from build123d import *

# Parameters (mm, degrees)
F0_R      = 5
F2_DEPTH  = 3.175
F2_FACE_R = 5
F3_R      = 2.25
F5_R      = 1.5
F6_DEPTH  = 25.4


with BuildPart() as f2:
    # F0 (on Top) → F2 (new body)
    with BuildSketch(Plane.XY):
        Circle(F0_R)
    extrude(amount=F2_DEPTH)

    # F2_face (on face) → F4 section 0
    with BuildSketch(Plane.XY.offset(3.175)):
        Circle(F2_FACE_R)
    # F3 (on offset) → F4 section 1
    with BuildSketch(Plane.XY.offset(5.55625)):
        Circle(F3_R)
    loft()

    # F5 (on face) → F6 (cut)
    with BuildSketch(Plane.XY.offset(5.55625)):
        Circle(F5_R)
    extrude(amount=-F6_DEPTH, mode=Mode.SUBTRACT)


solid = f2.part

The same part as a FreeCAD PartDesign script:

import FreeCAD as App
import Part
import Sketcher
from FreeCAD import Vector

doc = App.newDocument("Part")
body = doc.addObject("PartDesign::Body", "Body")

# Sketch on XY plane
sketch1 = body.newObject("Sketcher::SketchObject", "Sketch")
sketch1.AttachmentSupport = (doc.getObject("XY_Plane"), [""])
sketch1.MapMode = "FlatFace"
sketch1.addGeometry(Part.Circle(Vector(0, 0, 0), Vector(0, 0, 1), 5), False)
sketch1.addConstraint([
    Sketcher.Constraint("Coincident", 0, 3, -1, 1),
    Sketcher.Constraint("Diameter", 0, 10.0),
])
pad1 = body.newObject("PartDesign::Pad", "Pad")
pad1.Profile = sketch1
pad1.Length = 3.175

# Sketch on XY plane
sketch2 = body.newObject("Sketcher::SketchObject", "Sketch001")
sketch2.AttachmentSupport = (doc.getObject("XY_Plane"), [""])
sketch2.MapMode = "FlatFace"
sketch2.AttachmentOffset = App.Placement(Vector(0, 0, 3.175), App.Rotation())
sketch2.addGeometry(Part.Circle(Vector(0, 0, 0), Vector(0, 0, 1), 5), False)
sketch2.addConstraint([
    Sketcher.Constraint("Coincident", 0, 3, -1, 1),
    Sketcher.Constraint("Diameter", 0, 10.0),
])

# Sketch on XY plane
sketch3 = body.newObject("Sketcher::SketchObject", "Sketch002")
sketch3.AttachmentSupport = (doc.getObject("XY_Plane"), [""])
sketch3.MapMode = "FlatFace"
sketch3.AttachmentOffset = App.Placement(Vector(0, 0, 5.55625), App.Rotation())
sketch3.addGeometry(Part.Circle(Vector(0, 0, 0), Vector(0, 0, 1), 2.2), False)
sketch3.addConstraint([
    Sketcher.Constraint("Coincident", 0, 3, -1, 1),
    Sketcher.Constraint("Diameter", 0, 4.5),
])

additiveloft = body.newObject("PartDesign::AdditiveLoft", "AdditiveLoft")
additiveloft.Profile = sketch2
additiveloft.Sections = [sketch3]

# Sketch on XY plane
sketch4 = body.newObject("Sketcher::SketchObject", "Sketch003")
sketch4.AttachmentSupport = (doc.getObject("XY_Plane"), [""])
sketch4.MapMode = "FlatFace"
sketch4.AttachmentOffset = App.Placement(Vector(0, 0, 5.55625), App.Rotation())
sketch4.addGeometry(Part.Circle(Vector(0, 0, 0), Vector(0, 0, 1), 1.5), False)
sketch4.addConstraint([
    Sketcher.Constraint("Coincident", 0, 3, -1, 1),
    Sketcher.Constraint("Diameter", 0, 3.0),
])
pocket1 = body.newObject("PartDesign::Pocket", "Pocket")
pocket1.Profile = sketch4
pocket1.Length = 25.4

doc.recompute()
